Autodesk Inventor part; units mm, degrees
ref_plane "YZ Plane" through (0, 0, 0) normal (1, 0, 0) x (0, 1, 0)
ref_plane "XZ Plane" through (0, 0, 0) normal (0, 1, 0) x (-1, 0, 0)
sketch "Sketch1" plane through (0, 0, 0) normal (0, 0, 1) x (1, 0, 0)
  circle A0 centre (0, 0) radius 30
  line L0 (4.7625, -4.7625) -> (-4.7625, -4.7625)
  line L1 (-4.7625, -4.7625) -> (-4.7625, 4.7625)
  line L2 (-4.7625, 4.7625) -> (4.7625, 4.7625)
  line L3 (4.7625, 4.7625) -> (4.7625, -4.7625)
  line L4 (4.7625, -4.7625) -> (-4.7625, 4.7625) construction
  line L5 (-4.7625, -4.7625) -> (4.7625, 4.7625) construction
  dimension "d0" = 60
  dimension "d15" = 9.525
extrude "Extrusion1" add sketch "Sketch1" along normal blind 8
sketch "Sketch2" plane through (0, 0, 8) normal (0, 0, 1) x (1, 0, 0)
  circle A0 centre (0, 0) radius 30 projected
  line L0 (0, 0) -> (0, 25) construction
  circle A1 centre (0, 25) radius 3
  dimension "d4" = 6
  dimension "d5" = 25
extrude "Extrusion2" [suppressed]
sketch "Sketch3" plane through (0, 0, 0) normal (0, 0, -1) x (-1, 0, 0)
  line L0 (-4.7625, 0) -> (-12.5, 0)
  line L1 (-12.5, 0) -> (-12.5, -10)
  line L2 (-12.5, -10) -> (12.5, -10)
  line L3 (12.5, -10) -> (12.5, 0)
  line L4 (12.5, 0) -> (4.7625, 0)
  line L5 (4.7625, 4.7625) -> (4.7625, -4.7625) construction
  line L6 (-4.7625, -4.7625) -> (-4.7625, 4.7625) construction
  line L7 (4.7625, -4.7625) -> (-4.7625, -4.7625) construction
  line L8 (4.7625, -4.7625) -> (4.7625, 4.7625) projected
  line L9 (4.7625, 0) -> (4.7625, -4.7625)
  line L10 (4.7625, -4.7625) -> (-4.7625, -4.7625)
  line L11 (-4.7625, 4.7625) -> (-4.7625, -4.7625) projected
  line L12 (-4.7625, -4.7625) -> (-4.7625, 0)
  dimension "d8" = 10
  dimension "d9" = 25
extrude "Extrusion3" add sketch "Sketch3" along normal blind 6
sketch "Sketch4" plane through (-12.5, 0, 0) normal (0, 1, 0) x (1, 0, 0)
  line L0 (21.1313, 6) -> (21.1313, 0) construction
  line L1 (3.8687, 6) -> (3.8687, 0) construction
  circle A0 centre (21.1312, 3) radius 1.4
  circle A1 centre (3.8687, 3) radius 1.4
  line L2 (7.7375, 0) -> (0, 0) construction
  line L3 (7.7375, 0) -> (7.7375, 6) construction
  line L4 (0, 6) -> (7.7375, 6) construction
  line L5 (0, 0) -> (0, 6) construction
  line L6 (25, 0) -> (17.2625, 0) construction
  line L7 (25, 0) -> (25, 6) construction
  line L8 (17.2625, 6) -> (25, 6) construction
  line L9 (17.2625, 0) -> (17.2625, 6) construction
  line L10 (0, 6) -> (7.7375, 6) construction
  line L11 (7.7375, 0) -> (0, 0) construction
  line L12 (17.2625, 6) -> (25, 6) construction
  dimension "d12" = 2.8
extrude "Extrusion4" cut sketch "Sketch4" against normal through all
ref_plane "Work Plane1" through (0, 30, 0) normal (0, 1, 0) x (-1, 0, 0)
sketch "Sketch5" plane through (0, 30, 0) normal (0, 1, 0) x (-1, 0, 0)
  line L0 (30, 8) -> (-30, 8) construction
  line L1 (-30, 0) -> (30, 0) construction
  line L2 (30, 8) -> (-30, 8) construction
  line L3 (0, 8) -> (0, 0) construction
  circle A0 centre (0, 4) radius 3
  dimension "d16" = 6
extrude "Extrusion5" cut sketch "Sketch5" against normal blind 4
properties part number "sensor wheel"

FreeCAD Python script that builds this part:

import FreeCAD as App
import Part
import Sketcher

V = App.Vector
Q = App.Units.Quantity


def add_polygon(sketch, points):
    """Adds a closed chain of lines whose ends are joined by coincident constraints."""
    first, n = sketch.GeometryCount, len(points)
    for a, b in zip(points, points[1:] + points[:1]):
        sketch.addGeometry(Part.LineSegment(App.Vector(*a, 0), App.Vector(*b, 0)), False)
    for i in range(n):
        sketch.addConstraint(Sketcher.Constraint("Coincident", first + i, 2, first + (i + 1) % n, 1))

doc = App.newDocument("Part")
body = doc.addObject("PartDesign::Body", "Body")

# Sketch on XY plane
sketch1 = body.newObject("Sketcher::SketchObject", "Sketch")
sketch1.AttachmentSupport = (doc.getObject("XY_Plane"), [""])
sketch1.MapMode = "FlatFace"
sketch1.addGeometry(Part.Circle(V(0, 0, 0), V(0, 0, 1), 30), False)  # 0
add_polygon(sketch1, [(5, 5), (5, -5), (-5, -5), (-5, 5)])  # lines 1-4
sketch1.addConstraint([
    Sketcher.Constraint("Vertical", 1),
    Sketcher.Constraint("Horizontal", 2),
    Sketcher.Constraint("Vertical", 3),
    Sketcher.Constraint("Horizontal", 4),
    Sketcher.Constraint("Coincident", 0, 3, -1, 1),
    Sketcher.Constraint("Symmetric", 1, 2, 3, 2, -1, 1),
    Sketcher.Constraint("Equal", 4, 1),
    Sketcher.Constraint("Diameter", 0, Q("60 mm")),
    Sketcher.Constraint("DistanceX", 2, 2, 2, 1, Q("9.525 mm")),
])
pad1 = body.newObject("PartDesign::Pad", "Pad")
pad1.Profile = sketch1
pad1.Length = 8

# Sketch on XY plane
sketch2 = body.newObject("Sketcher::SketchObject", "Sketch001")
sketch2.AttachmentSupport = (doc.getObject("XY_Plane"), [""])
sketch2.MapMode = "FlatFace"
add_polygon(sketch2, [(4.8, -4.8), (4.8, 0), (12.5, 0), (12.5, -10), (-12.5, -10), (-12.5, 0), (-4.8, 0), (-4.8, -4.8)])  # lines 0-7
sketch2.addConstraint([
    Sketcher.Constraint("Vertical", 0),
    Sketcher.Constraint("Horizontal", 1),
    Sketcher.Constraint("Vertical", 2),
    Sketcher.Constraint("Horizontal", 3),
    Sketcher.Constraint("Vertical", 4),
    Sketcher.Constraint("Horizontal", 5),
    Sketcher.Constraint("Vertical", 6),
    Sketcher.Constraint("Horizontal", 7),
    Sketcher.Constraint("Symmetric", 1, 2, 4, 2, -1, 1),
    Sketcher.Constraint("Symmetric", 0, 2, 5, 2, -2),
    Sketcher.Constraint("DistanceX", 3, 2, 3, 1, Q("25 mm")),
    Sketcher.Constraint("DistanceY", 2, 2, 2, 1, Q("10 mm")),
    Sketcher.Constraint("DistanceX", 7, 1, 7, 2, Q("9.525 mm")),
    Sketcher.Constraint("DistanceY", 0, 1, 0, 2, Q("4.7625 mm")),
])
pad2 = body.newObject("PartDesign::Pad", "Pad001")
pad2.Profile = sketch2
pad2.Length = 6
pad2.Reversed = True

# Sketch on XZ plane
sketch3 = body.newObject("Sketcher::SketchObject", "Sketch002")
sketch3.AttachmentSupport = (doc.getObject("XZ_Plane"), [""])
sketch3.MapMode = "FlatFace"
sketch3.addGeometry([
    Part.Circle(V(8.6, -3, 0), V(0, 0, 1), 1.4),
    Part.Circle(V(-8.6, -3, 0), V(0, 0, 1), 1.4),
], False)
sketch3.addConstraint([
    Sketcher.Constraint("Equal", 0, 1),
    Sketcher.Constraint("Symmetric", 0, 3, 1, 3, -2),
    Sketcher.Constraint("Diameter", 0, Q("2.8 mm")),
    Sketcher.Constraint("DistanceY", 0, 3, -1, 1, Q("3 mm")),
    Sketcher.Constraint("DistanceX", -1, 1, 0, 3, Q("8.6312 mm")),
])
pocket1 = body.newObject("PartDesign::Pocket", "Pocket")
pocket1.Profile = sketch3
pocket1.Type = "ThroughAll"
pocket1.Reversed = True

# Sketch on XZ plane
sketch4 = body.newObject("Sketcher::SketchObject", "Sketch003")
sketch4.AttachmentSupport = (doc.getObject("XZ_Plane"), [""])
sketch4.MapMode = "FlatFace"
sketch4.AttachmentOffset = App.Placement(V(0, 0, -30), App.Rotation())
sketch4.addGeometry(Part.Circle(V(0, 4, 0), V(0, 0, 1), 3), False)
sketch4.addConstraint([
    Sketcher.Constraint("PointOnObject", 0, 3, -2),
    Sketcher.Constraint("Diameter", 0, Q("6 mm")),
    Sketcher.Constraint("DistanceY", -1, 1, 0, 3, Q("4 mm")),
])
pocket2 = body.newObject("PartDesign::Pocket", "Pocket001")
pocket2.Profile = sketch4
pocket2.Length = 4
pocket2.Reversed = True

doc.recompute()
